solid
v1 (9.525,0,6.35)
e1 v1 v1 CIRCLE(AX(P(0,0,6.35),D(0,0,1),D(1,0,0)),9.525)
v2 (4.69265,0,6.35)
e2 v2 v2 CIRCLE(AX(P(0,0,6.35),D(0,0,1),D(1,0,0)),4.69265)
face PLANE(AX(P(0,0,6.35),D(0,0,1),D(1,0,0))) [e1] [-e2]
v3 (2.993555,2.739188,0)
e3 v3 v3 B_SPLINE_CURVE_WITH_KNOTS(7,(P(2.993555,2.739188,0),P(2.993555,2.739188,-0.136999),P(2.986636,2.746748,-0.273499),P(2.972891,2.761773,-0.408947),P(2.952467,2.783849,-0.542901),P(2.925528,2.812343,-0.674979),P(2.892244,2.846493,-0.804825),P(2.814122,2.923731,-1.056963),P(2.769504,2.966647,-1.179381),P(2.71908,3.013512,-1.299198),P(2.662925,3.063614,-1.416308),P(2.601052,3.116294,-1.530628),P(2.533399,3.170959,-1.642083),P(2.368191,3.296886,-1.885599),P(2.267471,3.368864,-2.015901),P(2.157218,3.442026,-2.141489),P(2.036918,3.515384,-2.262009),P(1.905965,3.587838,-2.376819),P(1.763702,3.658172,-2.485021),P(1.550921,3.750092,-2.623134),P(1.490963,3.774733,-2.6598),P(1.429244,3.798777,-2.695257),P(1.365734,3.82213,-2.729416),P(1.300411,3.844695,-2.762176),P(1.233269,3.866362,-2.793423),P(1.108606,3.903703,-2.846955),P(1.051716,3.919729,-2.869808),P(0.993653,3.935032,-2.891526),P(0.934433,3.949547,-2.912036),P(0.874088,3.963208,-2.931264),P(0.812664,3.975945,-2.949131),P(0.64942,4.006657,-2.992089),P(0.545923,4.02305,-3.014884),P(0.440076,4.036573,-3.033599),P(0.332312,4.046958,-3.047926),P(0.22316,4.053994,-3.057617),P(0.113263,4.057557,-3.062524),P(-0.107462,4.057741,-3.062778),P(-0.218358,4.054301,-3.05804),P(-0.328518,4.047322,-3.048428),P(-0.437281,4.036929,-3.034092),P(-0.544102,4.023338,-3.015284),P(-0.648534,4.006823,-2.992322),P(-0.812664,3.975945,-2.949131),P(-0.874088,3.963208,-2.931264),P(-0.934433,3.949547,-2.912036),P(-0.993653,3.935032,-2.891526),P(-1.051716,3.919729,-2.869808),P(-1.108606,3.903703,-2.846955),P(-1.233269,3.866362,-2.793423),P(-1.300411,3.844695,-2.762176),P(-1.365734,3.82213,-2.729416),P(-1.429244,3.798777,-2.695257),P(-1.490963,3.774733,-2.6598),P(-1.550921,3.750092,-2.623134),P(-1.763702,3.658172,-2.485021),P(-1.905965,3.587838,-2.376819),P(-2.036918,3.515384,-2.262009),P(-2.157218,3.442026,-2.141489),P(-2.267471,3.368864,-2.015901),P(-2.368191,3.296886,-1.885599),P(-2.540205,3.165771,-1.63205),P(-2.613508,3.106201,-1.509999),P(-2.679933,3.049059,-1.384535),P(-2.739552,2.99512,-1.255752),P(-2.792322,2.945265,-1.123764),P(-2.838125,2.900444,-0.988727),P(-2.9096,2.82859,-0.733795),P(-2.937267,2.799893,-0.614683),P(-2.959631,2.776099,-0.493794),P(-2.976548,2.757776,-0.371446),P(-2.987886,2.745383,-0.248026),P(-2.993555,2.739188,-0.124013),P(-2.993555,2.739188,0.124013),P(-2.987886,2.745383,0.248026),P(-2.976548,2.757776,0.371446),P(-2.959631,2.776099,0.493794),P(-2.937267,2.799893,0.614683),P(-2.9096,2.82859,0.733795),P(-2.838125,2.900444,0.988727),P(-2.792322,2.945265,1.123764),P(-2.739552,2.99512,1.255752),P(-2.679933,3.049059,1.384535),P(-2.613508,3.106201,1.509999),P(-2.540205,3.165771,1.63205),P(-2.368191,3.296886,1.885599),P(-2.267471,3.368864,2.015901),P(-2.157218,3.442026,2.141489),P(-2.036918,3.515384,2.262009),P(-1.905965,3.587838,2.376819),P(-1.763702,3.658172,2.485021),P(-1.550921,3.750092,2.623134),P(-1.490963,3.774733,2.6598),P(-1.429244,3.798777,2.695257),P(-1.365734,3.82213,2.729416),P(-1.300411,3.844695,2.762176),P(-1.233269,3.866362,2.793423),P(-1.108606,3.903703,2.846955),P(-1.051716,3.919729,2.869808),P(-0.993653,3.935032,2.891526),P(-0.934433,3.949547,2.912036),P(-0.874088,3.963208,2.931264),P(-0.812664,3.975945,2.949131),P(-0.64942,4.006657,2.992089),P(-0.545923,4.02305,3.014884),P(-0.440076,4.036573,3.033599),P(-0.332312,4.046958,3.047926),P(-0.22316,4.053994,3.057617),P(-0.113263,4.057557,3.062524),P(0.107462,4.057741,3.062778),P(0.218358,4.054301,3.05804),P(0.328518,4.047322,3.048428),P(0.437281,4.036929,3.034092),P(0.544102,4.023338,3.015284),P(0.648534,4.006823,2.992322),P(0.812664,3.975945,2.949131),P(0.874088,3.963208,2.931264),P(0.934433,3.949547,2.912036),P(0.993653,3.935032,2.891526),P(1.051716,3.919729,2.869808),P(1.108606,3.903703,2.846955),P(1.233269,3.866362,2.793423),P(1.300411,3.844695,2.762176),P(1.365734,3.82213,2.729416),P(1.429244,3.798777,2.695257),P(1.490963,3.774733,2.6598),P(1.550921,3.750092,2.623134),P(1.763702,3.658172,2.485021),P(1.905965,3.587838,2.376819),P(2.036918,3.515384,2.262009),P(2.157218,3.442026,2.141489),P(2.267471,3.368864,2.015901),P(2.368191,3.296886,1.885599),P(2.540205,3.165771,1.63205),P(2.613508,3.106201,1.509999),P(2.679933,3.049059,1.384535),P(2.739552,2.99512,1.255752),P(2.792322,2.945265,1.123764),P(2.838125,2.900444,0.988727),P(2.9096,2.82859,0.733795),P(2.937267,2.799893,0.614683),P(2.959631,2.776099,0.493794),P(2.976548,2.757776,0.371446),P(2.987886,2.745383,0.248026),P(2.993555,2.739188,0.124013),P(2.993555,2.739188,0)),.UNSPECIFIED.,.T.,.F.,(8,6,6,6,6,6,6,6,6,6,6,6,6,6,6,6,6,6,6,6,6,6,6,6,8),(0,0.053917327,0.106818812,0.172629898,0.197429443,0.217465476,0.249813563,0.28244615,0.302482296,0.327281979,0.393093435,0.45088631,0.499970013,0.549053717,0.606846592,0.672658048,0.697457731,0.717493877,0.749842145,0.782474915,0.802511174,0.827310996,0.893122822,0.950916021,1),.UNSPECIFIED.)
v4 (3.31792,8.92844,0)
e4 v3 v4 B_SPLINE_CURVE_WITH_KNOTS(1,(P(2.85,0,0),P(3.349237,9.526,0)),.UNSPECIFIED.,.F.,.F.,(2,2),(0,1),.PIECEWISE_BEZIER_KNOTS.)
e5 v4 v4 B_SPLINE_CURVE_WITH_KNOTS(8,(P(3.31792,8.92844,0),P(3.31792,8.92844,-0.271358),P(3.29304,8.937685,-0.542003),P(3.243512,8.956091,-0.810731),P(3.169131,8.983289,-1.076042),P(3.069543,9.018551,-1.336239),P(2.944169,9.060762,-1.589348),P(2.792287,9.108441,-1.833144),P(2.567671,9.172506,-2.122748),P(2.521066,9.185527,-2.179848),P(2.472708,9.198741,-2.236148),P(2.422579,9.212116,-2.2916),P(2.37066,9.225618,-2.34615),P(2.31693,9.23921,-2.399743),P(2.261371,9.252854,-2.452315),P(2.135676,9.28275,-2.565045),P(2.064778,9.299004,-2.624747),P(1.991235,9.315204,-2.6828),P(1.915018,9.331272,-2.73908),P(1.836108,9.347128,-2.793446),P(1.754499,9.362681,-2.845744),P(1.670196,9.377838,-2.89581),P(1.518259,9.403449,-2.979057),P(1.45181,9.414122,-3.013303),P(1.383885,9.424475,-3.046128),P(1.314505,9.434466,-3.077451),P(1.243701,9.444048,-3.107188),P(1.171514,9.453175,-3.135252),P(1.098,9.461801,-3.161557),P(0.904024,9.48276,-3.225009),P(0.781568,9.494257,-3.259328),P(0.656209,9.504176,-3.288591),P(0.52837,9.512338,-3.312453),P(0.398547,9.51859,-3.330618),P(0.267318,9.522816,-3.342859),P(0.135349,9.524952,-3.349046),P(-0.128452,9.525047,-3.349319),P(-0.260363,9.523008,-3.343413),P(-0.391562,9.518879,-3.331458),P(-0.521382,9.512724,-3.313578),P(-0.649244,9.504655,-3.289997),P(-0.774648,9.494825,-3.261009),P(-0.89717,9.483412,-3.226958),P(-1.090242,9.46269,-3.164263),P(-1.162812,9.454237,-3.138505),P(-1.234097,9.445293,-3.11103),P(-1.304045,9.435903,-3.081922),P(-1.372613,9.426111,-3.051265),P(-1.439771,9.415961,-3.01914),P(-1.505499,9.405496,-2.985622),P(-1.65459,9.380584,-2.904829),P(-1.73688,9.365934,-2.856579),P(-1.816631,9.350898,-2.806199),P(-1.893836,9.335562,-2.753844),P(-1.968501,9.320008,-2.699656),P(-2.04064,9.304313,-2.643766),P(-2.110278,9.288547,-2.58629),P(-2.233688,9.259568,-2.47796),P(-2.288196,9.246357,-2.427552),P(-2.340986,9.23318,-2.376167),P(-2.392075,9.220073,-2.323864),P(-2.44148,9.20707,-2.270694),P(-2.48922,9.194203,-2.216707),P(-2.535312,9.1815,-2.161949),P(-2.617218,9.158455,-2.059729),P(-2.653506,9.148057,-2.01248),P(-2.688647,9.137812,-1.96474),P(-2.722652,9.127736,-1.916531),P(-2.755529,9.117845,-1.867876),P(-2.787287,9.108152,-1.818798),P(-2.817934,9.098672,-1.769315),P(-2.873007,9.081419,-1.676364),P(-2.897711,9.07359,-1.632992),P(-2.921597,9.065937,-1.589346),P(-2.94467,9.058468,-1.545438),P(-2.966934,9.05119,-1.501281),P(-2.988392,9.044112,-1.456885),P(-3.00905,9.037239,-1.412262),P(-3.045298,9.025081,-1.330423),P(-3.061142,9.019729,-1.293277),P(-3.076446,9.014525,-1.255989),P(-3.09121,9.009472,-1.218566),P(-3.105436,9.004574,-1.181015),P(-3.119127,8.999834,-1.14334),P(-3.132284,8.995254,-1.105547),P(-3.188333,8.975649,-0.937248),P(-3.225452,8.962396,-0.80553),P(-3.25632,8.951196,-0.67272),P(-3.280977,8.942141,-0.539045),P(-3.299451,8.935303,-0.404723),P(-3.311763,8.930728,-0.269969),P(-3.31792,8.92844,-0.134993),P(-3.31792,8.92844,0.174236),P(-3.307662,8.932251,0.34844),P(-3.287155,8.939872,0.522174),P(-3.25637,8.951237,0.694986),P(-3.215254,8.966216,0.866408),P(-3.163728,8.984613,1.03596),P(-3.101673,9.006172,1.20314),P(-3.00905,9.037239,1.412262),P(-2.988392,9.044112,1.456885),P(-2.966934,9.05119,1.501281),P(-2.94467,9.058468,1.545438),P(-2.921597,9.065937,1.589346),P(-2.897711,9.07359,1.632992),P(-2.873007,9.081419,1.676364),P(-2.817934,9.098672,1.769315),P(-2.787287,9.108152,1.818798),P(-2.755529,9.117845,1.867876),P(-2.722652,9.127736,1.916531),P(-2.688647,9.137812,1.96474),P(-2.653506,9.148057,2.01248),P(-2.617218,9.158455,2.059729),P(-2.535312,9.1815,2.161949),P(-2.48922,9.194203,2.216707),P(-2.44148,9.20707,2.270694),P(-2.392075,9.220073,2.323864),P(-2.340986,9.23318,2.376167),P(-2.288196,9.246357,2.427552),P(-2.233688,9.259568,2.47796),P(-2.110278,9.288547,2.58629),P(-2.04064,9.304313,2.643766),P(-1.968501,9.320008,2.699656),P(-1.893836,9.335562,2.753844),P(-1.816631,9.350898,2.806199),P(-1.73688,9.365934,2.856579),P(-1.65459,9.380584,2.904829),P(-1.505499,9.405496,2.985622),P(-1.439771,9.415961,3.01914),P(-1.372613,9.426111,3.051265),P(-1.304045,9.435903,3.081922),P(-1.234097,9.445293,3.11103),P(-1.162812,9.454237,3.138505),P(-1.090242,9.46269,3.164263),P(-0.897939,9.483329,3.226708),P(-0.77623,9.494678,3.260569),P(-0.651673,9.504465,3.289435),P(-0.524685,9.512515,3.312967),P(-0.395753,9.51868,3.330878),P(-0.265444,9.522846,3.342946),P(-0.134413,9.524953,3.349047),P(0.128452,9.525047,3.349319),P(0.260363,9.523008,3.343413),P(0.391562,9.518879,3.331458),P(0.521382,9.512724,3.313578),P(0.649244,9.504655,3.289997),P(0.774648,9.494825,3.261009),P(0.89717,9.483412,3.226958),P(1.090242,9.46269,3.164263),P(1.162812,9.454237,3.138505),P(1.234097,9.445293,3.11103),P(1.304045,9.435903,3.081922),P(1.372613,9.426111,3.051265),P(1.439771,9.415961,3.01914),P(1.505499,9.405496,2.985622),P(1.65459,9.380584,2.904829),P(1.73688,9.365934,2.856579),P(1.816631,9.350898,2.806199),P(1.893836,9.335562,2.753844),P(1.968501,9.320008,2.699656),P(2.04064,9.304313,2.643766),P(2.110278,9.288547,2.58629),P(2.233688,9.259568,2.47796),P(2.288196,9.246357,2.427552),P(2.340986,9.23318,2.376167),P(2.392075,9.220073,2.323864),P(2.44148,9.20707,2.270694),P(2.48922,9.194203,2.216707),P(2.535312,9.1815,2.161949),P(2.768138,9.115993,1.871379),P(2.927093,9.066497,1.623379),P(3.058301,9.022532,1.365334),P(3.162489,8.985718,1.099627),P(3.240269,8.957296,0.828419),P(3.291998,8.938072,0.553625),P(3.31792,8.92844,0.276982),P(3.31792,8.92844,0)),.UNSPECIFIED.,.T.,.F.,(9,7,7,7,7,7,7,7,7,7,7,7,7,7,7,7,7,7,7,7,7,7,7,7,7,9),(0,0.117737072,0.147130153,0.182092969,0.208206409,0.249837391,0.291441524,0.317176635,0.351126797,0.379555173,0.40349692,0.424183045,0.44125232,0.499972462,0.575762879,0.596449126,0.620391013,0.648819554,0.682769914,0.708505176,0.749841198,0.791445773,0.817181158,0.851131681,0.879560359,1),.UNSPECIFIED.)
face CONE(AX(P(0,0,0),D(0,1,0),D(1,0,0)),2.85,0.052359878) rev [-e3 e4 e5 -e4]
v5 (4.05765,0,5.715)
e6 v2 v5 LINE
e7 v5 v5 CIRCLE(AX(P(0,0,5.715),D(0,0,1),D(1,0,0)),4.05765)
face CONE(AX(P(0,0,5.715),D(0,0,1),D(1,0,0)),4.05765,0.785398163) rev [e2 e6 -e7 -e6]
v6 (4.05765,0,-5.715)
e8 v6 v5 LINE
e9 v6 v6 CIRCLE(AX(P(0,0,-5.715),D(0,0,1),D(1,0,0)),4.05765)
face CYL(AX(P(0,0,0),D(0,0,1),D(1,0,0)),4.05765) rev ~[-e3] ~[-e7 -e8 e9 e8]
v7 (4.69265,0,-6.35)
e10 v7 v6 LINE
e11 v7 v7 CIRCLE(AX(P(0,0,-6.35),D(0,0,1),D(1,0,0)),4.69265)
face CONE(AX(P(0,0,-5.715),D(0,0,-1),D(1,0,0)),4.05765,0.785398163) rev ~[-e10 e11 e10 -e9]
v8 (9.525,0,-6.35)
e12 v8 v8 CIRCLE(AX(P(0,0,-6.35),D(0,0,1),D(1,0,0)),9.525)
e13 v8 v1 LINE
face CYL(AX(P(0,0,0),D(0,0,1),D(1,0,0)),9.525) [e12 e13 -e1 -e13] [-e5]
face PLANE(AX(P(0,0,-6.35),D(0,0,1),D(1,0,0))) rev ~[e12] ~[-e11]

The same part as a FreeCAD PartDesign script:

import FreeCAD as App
import Part
import Sketcher

V = App.Vector
Q = App.Units.Quantity


def edges_at(feature, points):
    """Names of the edges that pass closest to the given points."""
    edges = feature.Shape.Edges
    near = lambda p: min(range(len(edges)), key=lambda i: edges[i].distToShape(Part.Vertex(*p))[0])
    return sorted({f"Edge{near(p) + 1}" for p in points})

doc = App.newDocument("Part")
params = doc.addObject("Spreadsheet::Sheet", "Params")
for row, (alias, value) in enumerate([
    ("sketch1_diameter", "0.75 in"),
    ("pad1_length", "0.5 in"),
    ("pocket1_length", "1 in"),
    ("pocket2_length", "9.526 mm"),
    ("pocket2_taper", "3 deg"),
    ("chamfer_size", "0.025 in"),
], start=1):
    params.set(f"A{row}", alias)
    params.set(f"B{row}", "=" + value)
    params.setAlias(f"B{row}", alias)

body = doc.addObject("PartDesign::Body", "Body")

# Sketch on XY plane
sketch1 = body.newObject("Sketcher::SketchObject", "Sketch")
sketch1.AttachmentSupport = (doc.getObject("XY_Plane"), [""])
sketch1.MapMode = "FlatFace"
sketch1.addGeometry(Part.Circle(V(0, 0, 0), V(0, 0, 1), 10), False)
sketch1.addConstraint([
    Sketcher.Constraint("Coincident", 0, 3, -1, 1),
    Sketcher.Constraint("Diameter", 0, Q("0.75 in")),
])
sketch1.setExpression("Constraints[1]", "Params.sketch1_diameter")
pad1 = body.newObject("PartDesign::Pad", "Pad")
pad1.Profile = sketch1
pad1.setExpression("Length", "Params.pad1_length")
pad1.Midplane = True

# Sketch on XY plane
sketch2 = body.newObject("Sketcher::SketchObject", "Sketch001")
sketch2.AttachmentSupport = (doc.getObject("XY_Plane"), [""])
sketch2.MapMode = "FlatFace"
sketch2.addGeometry(Part.Circle(V(0, 0, 0), V(0, 0, 1), 4.1), False)
sketch2.addConstraint([
    Sketcher.Constraint("Coincident", 0, 3, -1, 1),
    Sketcher.Constraint("Diameter", 0, Q("0.3195 in")),
])
pocket1 = body.newObject("PartDesign::Pocket", "Pocket")
pocket1.Profile = sketch2
pocket1.setExpression("Length", "Params.pocket1_length")
pocket1.Midplane = True

# Sketch on XZ plane
sketch3 = body.newObject("Sketcher::SketchObject", "Sketch002")
sketch3.AttachmentSupport = (doc.getObject("XZ_Plane"), [""])
sketch3.MapMode = "FlatFace"
sketch3.addGeometry(Part.Circle(V(0, 0, 0), V(0, 0, 1), 2.9), False)
sketch3.addConstraint([
    Sketcher.Constraint("Coincident", 0, 3, -1, 1),
    Sketcher.Constraint("Diameter", 0, Q("5.7 mm")),
])
pocket2 = body.newObject("PartDesign::Pocket", "Pocket001")
pocket2.Profile = sketch3
pocket2.setExpression("Length", "Params.pocket2_length")
pocket2.setExpression("TaperAngle", "Params.pocket2_taper")
doc.recompute()

chamfer = body.newObject("PartDesign::Chamfer", "Chamfer")
chamfer.Base = (pocket2, edges_at(pocket2, [(-4.058, 0, -6.35), (-4.058, 0, 6.35)]))
chamfer.setExpression("Size", "Params.chamfer_size")

doc.recompute()
